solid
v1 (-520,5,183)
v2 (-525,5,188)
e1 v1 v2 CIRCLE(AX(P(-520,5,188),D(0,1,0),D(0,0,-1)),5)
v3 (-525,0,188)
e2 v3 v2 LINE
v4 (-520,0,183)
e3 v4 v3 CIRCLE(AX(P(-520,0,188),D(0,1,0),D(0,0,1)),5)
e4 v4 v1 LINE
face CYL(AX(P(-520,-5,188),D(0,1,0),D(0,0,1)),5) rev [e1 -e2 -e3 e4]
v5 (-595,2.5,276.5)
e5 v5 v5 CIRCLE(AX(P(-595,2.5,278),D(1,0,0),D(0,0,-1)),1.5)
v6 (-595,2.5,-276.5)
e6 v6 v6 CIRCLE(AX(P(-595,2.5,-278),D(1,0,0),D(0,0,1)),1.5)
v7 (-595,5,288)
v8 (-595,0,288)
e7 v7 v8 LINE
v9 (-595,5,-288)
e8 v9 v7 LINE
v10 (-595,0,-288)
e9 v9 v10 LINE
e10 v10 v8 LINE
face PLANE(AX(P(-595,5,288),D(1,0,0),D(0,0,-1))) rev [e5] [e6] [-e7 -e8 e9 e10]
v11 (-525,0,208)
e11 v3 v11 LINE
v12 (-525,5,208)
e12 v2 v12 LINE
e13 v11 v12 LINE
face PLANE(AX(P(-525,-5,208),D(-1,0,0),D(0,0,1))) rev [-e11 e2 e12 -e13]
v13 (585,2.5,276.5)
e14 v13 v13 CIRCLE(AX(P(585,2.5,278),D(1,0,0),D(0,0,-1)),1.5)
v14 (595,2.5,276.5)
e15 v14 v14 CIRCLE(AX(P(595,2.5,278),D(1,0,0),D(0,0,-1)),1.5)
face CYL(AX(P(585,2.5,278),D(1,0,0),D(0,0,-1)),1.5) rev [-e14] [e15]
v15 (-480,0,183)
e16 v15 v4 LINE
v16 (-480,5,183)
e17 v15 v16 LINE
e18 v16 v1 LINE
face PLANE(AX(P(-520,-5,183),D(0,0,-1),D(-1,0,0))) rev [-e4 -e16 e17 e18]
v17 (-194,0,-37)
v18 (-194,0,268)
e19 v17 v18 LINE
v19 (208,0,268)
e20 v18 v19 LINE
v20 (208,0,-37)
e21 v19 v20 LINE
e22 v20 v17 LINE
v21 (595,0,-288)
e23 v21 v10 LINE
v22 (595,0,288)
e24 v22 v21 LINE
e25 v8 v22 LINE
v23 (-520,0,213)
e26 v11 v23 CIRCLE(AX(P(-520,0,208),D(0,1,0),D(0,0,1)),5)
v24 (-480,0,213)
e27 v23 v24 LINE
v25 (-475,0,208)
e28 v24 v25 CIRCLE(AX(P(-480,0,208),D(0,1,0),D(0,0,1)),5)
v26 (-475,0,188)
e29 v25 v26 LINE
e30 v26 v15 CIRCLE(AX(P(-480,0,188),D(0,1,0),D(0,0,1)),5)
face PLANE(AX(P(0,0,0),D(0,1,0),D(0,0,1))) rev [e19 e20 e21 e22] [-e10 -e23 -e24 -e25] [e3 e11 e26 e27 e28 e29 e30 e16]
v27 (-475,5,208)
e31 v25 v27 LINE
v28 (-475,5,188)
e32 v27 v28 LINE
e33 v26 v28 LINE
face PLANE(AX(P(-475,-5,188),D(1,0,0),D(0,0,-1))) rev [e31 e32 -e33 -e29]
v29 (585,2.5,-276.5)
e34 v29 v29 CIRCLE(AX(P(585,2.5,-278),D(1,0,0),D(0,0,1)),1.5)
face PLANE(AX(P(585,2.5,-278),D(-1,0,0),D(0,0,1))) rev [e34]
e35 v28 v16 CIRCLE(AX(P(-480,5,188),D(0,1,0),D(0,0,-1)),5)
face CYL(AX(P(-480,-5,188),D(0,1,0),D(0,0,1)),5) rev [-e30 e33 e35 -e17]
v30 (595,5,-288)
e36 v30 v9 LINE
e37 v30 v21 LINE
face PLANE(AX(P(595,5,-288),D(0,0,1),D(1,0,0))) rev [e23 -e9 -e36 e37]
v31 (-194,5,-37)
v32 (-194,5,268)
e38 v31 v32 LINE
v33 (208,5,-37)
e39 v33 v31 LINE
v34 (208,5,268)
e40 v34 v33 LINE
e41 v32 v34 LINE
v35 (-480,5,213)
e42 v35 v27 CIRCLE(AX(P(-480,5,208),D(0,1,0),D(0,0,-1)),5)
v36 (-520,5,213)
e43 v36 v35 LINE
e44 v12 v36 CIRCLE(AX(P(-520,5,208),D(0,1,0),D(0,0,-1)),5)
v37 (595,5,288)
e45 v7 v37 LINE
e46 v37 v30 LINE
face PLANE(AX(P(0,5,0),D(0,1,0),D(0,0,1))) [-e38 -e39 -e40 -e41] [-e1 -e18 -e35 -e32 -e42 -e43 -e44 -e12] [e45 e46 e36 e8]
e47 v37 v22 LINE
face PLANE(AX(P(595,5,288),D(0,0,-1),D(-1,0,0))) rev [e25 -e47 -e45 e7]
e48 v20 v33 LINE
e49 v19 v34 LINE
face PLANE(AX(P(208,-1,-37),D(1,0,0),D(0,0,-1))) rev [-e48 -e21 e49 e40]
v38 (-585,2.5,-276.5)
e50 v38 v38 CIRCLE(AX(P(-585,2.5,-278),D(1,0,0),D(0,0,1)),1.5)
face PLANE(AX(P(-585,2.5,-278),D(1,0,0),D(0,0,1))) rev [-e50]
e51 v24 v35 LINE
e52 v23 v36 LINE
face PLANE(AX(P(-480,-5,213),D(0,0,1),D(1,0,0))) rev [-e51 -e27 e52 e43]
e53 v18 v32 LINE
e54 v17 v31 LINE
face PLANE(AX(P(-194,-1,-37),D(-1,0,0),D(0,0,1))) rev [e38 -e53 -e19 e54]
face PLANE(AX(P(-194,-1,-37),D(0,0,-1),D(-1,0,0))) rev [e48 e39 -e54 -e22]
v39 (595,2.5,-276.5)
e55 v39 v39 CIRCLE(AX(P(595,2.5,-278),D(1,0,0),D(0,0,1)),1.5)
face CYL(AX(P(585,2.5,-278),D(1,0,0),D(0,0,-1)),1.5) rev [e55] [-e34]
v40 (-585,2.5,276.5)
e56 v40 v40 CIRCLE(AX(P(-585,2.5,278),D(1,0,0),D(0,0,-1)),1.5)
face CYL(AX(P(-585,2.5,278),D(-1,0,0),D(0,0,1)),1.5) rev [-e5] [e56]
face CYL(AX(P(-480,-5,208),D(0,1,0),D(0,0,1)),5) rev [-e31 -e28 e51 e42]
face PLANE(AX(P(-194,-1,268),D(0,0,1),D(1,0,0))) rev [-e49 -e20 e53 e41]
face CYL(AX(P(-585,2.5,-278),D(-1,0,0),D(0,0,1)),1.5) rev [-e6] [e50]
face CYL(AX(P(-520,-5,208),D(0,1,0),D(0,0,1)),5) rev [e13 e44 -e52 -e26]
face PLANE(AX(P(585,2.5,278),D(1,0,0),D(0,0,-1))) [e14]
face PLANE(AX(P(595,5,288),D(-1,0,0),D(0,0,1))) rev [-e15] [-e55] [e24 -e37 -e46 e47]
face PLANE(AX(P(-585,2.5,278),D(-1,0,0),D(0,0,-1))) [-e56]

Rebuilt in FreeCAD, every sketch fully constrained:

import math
import FreeCAD as App
import Part
import Sketcher

V = App.Vector
Q = App.Units.Quantity


def add_polygon(sketch, points):
    """Adds a closed chain of lines whose ends are joined by coincident constraints."""
    first, n = sketch.GeometryCount, len(points)
    for a, b in zip(points, points[1:] + points[:1]):
        sketch.addGeometry(Part.LineSegment(App.Vector(*a, 0), App.Vector(*b, 0)), False)
    for i in range(n):
        sketch.addConstraint(Sketcher.Constraint("Coincident", first + i, 2, first + (i + 1) % n, 1))

doc = App.newDocument("Part")
body = doc.addObject("PartDesign::Body", "Body")

# Sketch on XZ plane
sketch1 = body.newObject("Sketcher::SketchObject", "Sketch")
sketch1.AttachmentSupport = (doc.getObject("XZ_Plane"), [""])
sketch1.MapMode = "FlatFace"
add_polygon(sketch1, [(-595, -288), (-595, 288), (595, 288), (595, -288)])  # lines 0-3
sketch1.addConstraint(Sketcher.Constraint("Vertical", 0))
sketch1.addConstraint(Sketcher.Constraint("Horizontal", 1))
sketch1.addConstraint(Sketcher.Constraint("Vertical", 2))
sketch1.addConstraint(Sketcher.Constraint("Horizontal", 3))
sketch1.addConstraint(Sketcher.Constraint("Symmetric", 0, 2, 2, 2, -1, 1))
sketch1.addConstraint(Sketcher.Constraint("DistanceX", 1, 1, 1, 2, Q("1190 mm")))
sketch1.addConstraint(Sketcher.Constraint("DistanceY", 0, 1, 0, 2, Q("576 mm")))
pad1 = body.newObject("PartDesign::Pad", "Pad")
pad1.Profile = sketch1
pad1.Length = 5
pad1.Reversed = True

# Sketch on YZ plane
sketch2 = body.newObject("Sketcher::SketchObject", "Sketch001")
sketch2.AttachmentSupport = (doc.getObject("YZ_Plane"), [""])
sketch2.MapMode = "FlatFace"
sketch2.AttachmentOffset = App.Placement(V(0, 0, 595), App.Rotation())
sketch2.addGeometry(Part.Circle(V(2.5, 278, 0), V(0, 0, 1), 1.5), False)
sketch2.addGeometry(Part.Circle(V(2.5, -278, 0), V(0, 0, 1), 1.5), False)
sketch2.addConstraint(Sketcher.Constraint("Equal", 0, 1))
sketch2.addConstraint(Sketcher.Constraint("Symmetric", 0, 3, 1, 3, -1))
sketch2.addConstraint(Sketcher.Constraint("Diameter", 0, Q("3 mm")))
sketch2.addConstraint(Sketcher.Constraint("DistanceY", -1, 1, 0, 3, Q("278 mm")))
sketch2.addConstraint(Sketcher.Constraint("DistanceX", -1, 1, 0, 3, Q("2.5 mm")))
pocket1 = body.newObject("PartDesign::Pocket", "Pocket")
pocket1.Profile = sketch2
pocket1.Length = 10
doc.recompute()

mirrored = body.newObject("PartDesign::Mirrored", "Mirrored")
mirrored.Originals = [pocket1]
mirrored.MirrorPlane = (doc.getObject("YZ_Plane"), [""])
body.Tip = mirrored

# Sketch on XZ plane
sketch3 = body.newObject("Sketcher::SketchObject", "Sketch002")
sketch3.AttachmentSupport = (doc.getObject("XZ_Plane"), [""])
sketch3.MapMode = "FlatFace"
sketch3.AttachmentOffset = App.Placement(V(0, 0, -5), App.Rotation())
add_polygon(sketch3, [(-70, 68), (-70, 218), (80, 218), (80, 68)])  # lines 0-3
sketch3.addConstraint(Sketcher.Constraint("Vertical", 0))
sketch3.addConstraint(Sketcher.Constraint("Horizontal", 1))
sketch3.addConstraint(Sketcher.Constraint("Vertical", 2))
sketch3.addConstraint(Sketcher.Constraint("Horizontal", 3))
sketch3.addConstraint(Sketcher.Constraint("Equal", 3, 0))
sketch3.addConstraint(Sketcher.Constraint("DistanceX", 1, 1, 1, 2, Q("150 mm")))
sketch3.addConstraint(Sketcher.Constraint("DistanceX", 0, 2, -1, 1, Q("70 mm")))
sketch3.addConstraint(Sketcher.Constraint("DistanceY", -1, 1, 0, 2, Q("218 mm")))
pocket2 = body.newObject("PartDesign::Pocket", "Pocket001")
pocket2.Profile = sketch3
pocket2.Length = 10
pocket2.Reversed = True

# Sketch on XZ plane
sketch4 = body.newObject("Sketcher::SketchObject", "Sketch003")
sketch4.AttachmentSupport = (doc.getObject("XZ_Plane"), [""])
sketch4.MapMode = "FlatFace"
sketch4.AttachmentOffset = App.Placement(V(0, 0, -5), App.Rotation())
add_polygon(sketch4, [(-194, -37), (-194, 268), (208, 268), (208, -37)])  # lines 0-3
sketch4.addConstraint(Sketcher.Constraint("Vertical", 0))
sketch4.addConstraint(Sketcher.Constraint("Horizontal", 1))
sketch4.addConstraint(Sketcher.Constraint("Vertical", 2))
sketch4.addConstraint(Sketcher.Constraint("Horizontal", 3))
sketch4.addConstraint(Sketcher.Constraint("DistanceX", 1, 1, 1, 2, Q("402 mm")))
sketch4.addConstraint(Sketcher.Constraint("DistanceY", 0, 1, 0, 2, Q("305 mm")))
sketch4.addConstraint(Sketcher.Constraint("DistanceX", 0, 2, -1, 1, Q("194 mm")))
sketch4.addConstraint(Sketcher.Constraint("DistanceY", -1, 1, 0, 2, Q("268 mm")))
pocket3 = body.newObject("PartDesign::Pocket", "Pocket002")
pocket3.Profile = sketch4
pocket3.Length = 6
pocket3.Reversed = True

# Sketch on XZ plane
sketch5 = body.newObject("Sketcher::SketchObject", "Sketch004")
sketch5.AttachmentSupport = (doc.getObject("XZ_Plane"), [""])
sketch5.MapMode = "FlatFace"
sketch5.AttachmentOffset = App.Placement(V(0, 0, -5), App.Rotation())
sketch5.addGeometry(Part.LineSegment(V(-480, 183, 0), V(-520, 183, 0)), False)
sketch5.addGeometry(Part.ArcOfCircle(Part.Circle(V(-520, 188, 0), V(0, 0, 1), 5), math.radians(180), math.radians(270)), False)
sketch5.addGeometry(Part.LineSegment(V(-525, 188, 0), V(-525, 208, 0)), False)
sketch5.addGeometry(Part.ArcOfCircle(Part.Circle(V(-520, 208, 0), V(0, 0, 1), 5), math.radians(90), math.radians(180)), False)
sketch5.addGeometry(Part.LineSegment(V(-520, 213, 0), V(-480, 213, 0)), False)
sketch5.addGeometry(Part.ArcOfCircle(Part.Circle(V(-480, 208, 0), V(0, 0, 1), 5), math.radians(0), math.radians(90)), False)
sketch5.addGeometry(Part.LineSegment(V(-475, 208, 0), V(-475, 188, 0)), False)
sketch5.addGeometry(Part.ArcOfCircle(Part.Circle(V(-480, 188, 0), V(0, 0, 1), 5), math.radians(-90), math.radians(0)), False)
sketch5.addConstraint(Sketcher.Constraint("Tangent", 0, 2, 1, 2))
sketch5.addConstraint(Sketcher.Constraint("Tangent", 1, 1, 2, 1))
sketch5.addConstraint(Sketcher.Constraint("Tangent", 2, 2, 3, 2))
sketch5.addConstraint(Sketcher.Constraint("Tangent", 3, 1, 4, 1))
sketch5.addConstraint(Sketcher.Constraint("Tangent", 4, 2, 5, 2))
sketch5.addConstraint(Sketcher.Constraint("Tangent", 5, 1, 6, 1))
sketch5.addConstraint(Sketcher.Constraint("Tangent", 6, 2, 7, 2))
sketch5.addConstraint(Sketcher.Constraint("Tangent", 7, 1, 0, 1))
sketch5.addConstraint(Sketcher.Constraint("Horizontal", 0))
sketch5.addConstraint(Sketcher.Constraint("Vertical", 2))
sketch5.addConstraint(Sketcher.Constraint("Horizontal", 4))
sketch5.addConstraint(Sketcher.Constraint("Vertical", 6))
sketch5.addConstraint(Sketcher.Constraint("Equal", 1, 3))
sketch5.addConstraint(Sketcher.Constraint("Equal", 3, 5))
sketch5.addConstraint(Sketcher.Constraint("Equal", 5, 7))
sketch5.addConstraint(Sketcher.Constraint("Radius", 1, Q("5 mm")))
sketch5.addConstraint(Sketcher.Constraint("DistanceX", 0, 2, 0, 1, Q("40 mm")))
sketch5.addConstraint(Sketcher.Constraint("DistanceY", 2, 1, 2, 2, Q("20 mm")))
sketch5.addConstraint(Sketcher.Constraint("DistanceX", 1, 3, -1, 1, Q("520 mm")))
sketch5.addConstraint(Sketcher.Constraint("DistanceY", -1, 1, 1, 3, Q("188 mm")))
pocket4 = body.newObject("PartDesign::Pocket", "Pocket003")
pocket4.Profile = sketch5
pocket4.Length = 10
pocket4.Reversed = True

doc.recompute()
